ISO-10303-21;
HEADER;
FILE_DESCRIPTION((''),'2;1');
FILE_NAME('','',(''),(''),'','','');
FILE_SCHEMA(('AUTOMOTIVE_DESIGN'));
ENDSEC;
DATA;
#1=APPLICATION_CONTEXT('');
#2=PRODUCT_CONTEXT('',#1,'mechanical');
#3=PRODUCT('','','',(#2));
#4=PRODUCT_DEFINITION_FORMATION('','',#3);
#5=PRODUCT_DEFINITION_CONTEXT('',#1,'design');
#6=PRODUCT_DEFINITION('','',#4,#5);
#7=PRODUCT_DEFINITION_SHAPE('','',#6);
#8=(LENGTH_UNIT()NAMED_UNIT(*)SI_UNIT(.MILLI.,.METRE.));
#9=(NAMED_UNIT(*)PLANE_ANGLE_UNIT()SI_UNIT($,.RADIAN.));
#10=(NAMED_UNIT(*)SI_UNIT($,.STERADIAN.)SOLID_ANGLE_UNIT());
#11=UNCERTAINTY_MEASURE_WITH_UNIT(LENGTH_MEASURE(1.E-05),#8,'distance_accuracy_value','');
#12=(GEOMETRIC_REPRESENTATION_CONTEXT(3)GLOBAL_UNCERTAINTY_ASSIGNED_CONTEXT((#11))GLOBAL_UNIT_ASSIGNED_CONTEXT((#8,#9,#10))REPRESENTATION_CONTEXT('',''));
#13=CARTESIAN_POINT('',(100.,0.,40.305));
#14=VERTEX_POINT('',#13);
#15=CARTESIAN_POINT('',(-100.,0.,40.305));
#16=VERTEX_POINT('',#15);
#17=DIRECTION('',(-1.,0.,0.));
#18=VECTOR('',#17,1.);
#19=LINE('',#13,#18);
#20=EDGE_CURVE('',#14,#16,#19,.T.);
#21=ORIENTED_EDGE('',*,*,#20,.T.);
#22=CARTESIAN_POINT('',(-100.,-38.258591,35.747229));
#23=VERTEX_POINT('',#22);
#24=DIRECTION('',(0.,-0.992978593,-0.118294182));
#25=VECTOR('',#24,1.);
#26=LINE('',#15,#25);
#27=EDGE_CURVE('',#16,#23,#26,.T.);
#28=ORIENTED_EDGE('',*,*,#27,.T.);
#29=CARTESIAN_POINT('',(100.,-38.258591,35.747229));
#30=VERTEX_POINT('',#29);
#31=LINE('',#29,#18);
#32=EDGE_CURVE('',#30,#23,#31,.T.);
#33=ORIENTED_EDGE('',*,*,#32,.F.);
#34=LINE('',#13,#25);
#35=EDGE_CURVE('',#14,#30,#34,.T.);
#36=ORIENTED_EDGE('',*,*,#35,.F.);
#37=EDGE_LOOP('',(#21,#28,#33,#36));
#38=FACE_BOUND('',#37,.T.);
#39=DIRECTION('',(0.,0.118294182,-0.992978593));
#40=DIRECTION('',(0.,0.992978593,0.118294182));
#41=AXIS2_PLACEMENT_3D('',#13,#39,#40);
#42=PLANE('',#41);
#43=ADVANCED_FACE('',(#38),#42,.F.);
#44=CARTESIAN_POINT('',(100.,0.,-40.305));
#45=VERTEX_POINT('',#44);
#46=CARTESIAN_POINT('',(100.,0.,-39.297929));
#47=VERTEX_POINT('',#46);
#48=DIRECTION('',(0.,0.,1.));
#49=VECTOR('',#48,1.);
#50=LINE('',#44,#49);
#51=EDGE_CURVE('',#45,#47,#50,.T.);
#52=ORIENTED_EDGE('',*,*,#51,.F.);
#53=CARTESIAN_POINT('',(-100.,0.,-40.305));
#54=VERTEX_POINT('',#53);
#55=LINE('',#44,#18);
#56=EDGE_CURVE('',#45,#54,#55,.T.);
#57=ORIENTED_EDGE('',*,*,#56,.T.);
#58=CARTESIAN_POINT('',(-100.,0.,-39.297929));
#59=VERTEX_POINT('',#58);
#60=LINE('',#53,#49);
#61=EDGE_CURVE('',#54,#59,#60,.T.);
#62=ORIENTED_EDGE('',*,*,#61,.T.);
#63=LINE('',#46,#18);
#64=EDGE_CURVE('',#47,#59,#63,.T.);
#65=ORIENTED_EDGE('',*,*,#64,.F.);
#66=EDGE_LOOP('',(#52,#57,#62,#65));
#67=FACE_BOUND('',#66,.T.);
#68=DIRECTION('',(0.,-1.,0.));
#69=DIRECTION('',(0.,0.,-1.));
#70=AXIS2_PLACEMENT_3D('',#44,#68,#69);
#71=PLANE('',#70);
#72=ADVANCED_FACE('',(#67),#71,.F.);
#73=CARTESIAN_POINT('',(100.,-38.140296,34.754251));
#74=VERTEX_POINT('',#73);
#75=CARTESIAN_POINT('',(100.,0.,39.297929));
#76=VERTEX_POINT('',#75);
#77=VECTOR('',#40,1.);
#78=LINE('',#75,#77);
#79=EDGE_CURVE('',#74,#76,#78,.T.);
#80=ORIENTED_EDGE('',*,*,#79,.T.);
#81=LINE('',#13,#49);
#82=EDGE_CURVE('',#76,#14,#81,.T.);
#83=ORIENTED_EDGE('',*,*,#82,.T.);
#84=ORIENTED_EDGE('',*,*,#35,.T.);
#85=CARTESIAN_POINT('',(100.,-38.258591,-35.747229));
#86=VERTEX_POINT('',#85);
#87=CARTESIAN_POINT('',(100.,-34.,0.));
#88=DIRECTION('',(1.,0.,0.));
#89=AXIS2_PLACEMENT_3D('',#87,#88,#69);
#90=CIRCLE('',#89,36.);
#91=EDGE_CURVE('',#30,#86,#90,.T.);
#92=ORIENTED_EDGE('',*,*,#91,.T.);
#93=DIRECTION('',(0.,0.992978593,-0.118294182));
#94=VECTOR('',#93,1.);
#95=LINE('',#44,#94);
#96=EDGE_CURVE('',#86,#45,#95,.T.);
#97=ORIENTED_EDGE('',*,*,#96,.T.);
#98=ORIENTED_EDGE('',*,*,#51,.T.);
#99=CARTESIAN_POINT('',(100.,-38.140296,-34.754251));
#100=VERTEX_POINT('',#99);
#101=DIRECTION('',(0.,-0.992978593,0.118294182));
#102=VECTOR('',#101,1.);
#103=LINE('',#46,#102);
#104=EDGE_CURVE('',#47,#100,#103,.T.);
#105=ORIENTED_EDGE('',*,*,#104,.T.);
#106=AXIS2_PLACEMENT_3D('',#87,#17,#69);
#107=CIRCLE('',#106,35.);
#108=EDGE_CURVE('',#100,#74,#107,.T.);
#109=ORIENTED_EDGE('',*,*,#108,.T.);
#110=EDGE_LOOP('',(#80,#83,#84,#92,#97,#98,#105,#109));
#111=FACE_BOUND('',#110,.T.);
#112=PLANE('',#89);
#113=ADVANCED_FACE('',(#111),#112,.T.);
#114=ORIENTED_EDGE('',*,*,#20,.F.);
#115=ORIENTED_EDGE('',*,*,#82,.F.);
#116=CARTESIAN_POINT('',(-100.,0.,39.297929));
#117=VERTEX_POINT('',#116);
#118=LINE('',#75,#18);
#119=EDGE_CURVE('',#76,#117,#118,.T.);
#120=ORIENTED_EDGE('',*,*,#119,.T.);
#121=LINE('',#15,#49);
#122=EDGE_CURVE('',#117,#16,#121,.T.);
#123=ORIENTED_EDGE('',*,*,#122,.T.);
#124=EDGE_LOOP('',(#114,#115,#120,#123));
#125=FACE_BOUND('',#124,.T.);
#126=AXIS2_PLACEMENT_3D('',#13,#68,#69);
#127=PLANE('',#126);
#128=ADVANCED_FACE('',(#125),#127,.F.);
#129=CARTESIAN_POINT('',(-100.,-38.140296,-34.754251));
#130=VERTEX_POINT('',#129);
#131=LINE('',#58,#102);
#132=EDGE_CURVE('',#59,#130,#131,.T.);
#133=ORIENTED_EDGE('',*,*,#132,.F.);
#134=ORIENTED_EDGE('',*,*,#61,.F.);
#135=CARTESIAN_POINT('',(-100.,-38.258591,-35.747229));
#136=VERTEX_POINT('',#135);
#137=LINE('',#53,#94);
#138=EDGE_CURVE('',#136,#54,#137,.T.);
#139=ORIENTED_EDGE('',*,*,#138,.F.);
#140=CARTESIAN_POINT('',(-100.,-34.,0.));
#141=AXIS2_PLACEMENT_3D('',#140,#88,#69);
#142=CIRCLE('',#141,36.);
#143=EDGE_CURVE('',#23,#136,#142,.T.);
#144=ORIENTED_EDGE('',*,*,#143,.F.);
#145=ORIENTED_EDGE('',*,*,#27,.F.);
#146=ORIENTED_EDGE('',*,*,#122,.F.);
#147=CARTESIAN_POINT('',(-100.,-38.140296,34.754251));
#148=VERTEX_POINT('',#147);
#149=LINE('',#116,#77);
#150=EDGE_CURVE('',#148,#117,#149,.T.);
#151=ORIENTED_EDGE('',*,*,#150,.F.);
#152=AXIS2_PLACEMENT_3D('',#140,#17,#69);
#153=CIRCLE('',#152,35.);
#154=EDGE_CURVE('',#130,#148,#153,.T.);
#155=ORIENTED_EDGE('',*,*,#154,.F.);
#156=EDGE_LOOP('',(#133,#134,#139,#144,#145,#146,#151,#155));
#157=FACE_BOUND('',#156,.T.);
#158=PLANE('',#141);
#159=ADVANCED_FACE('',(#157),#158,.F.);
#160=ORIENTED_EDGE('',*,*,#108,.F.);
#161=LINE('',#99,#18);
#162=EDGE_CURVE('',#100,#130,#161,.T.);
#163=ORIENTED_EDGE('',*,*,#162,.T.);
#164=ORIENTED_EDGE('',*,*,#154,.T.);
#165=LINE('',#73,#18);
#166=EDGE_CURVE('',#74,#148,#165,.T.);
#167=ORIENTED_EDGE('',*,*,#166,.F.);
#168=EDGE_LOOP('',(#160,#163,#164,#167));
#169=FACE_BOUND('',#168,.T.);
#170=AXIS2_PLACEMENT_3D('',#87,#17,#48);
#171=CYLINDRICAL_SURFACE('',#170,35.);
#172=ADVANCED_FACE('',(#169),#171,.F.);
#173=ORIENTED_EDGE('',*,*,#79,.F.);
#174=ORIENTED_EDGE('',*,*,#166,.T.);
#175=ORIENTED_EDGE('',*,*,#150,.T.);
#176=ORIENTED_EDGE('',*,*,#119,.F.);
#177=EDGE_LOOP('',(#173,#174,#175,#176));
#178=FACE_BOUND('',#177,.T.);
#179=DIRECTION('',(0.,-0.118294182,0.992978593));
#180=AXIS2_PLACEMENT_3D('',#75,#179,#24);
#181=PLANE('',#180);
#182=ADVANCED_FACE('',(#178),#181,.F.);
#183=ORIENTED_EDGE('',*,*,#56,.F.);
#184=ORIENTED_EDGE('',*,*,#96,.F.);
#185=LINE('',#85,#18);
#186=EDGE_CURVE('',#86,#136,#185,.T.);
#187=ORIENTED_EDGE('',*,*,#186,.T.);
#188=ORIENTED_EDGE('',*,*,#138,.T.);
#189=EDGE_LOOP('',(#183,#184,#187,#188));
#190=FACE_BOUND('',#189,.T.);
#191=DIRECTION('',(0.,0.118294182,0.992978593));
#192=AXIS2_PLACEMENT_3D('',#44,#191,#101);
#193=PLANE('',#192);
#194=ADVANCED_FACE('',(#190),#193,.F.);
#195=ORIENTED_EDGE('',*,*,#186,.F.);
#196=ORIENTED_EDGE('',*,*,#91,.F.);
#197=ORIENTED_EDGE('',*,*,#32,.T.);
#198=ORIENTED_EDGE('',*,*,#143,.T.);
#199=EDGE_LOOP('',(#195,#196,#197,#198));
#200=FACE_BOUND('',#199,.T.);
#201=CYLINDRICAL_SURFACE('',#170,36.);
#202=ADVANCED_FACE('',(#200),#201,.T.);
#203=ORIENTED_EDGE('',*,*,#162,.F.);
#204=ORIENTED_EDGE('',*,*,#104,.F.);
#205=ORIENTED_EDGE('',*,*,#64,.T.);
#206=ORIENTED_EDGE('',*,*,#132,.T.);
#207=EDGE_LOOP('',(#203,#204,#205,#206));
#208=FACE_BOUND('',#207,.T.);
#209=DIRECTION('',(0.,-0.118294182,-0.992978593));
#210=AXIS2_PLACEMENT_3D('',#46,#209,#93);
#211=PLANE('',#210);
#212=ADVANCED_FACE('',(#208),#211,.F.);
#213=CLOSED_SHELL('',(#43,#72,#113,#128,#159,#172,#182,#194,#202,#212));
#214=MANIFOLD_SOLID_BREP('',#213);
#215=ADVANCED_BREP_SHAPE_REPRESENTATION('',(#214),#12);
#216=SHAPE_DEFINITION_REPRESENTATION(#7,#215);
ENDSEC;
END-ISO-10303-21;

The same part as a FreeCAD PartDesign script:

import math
import FreeCAD as App
import Part
import Sketcher
from FreeCAD import Vector

doc = App.newDocument("Part")
body = doc.addObject("PartDesign::Body", "Body")

sketch1 = body.newObject("Sketcher::SketchObject", "Sketch")
sketch1.AttachmentSupport = (doc.getObject("YZ_Plane"), [""])
sketch1.MapMode = "FlatFace"
sketch1.addGeometry(Part.LineSegment(Vector(0, 40.3, 0), Vector(-38.3, 35.7, 0)), False)
sketch1.addGeometry(Part.ArcOfCircle(Part.Circle(Vector(-34, 0, 0), Vector(0, 0, 1), 36), math.radians(97), math.radians(263)), False)
sketch1.addGeometry(Part.LineSegment(Vector(-38.3, -35.7, 0), Vector(0, -40.3, 0)), False)
sketch1.addGeometry(Part.LineSegment(Vector(0, -40.3, 0), Vector(0, -39.3, 0)), False)
sketch1.addGeometry(Part.LineSegment(Vector(0, -39.3, 0), Vector(-38.1, -34.8, 0)), False)
sketch1.addGeometry(Part.ArcOfCircle(Part.Circle(Vector(-34, 0, 0), Vector(0, 0, 1), 35), math.radians(97), math.radians(263)), False)
sketch1.addGeometry(Part.LineSegment(Vector(-38.1, 34.8, 0), Vector(0, 39.3, 0)), False)
sketch1.addGeometry(Part.LineSegment(Vector(0, 39.3, 0), Vector(0, 40.3, 0)), False)
sketch1.addConstraint(Sketcher.Constraint("Tangent", 0, 2, 1, 1))
sketch1.addConstraint(Sketcher.Constraint("Tangent", 1, 2, 2, 1))
sketch1.addConstraint(Sketcher.Constraint("Coincident", 2, 2, 3, 1))
sketch1.addConstraint(Sketcher.Constraint("Coincident", 3, 2, 4, 1))
sketch1.addConstraint(Sketcher.Constraint("Tangent", 4, 2, 5, 2))
sketch1.addConstraint(Sketcher.Constraint("Tangent", 5, 1, 6, 1))
sketch1.addConstraint(Sketcher.Constraint("Coincident", 6, 2, 7, 1))
sketch1.addConstraint(Sketcher.Constraint("Coincident", 7, 2, 0, 1))
sketch1.addConstraint(Sketcher.Constraint("Vertical", 3))
sketch1.addConstraint(Sketcher.Constraint("Vertical", 7))
sketch1.addConstraint(Sketcher.Constraint("Coincident", 5, 3, 1, 3))
sketch1.addConstraint(Sketcher.Constraint("Symmetric", 3, 2, 6, 2, -1, 1))
sketch1.addConstraint(Sketcher.Constraint("Symmetric", 0, 2, 1, 2, -1))
sketch1.addConstraint(Sketcher.Constraint("PointOnObject", 2, 2, -2))
sketch1.addConstraint(Sketcher.Constraint("Parallel", 2, 4))
sketch1.addConstraint(Sketcher.Constraint("Radius", 1, 36.0))
sketch1.addConstraint(Sketcher.Constraint("Radius", 5, 35.0))
sketch1.addConstraint(Sketcher.Constraint("DistanceX", 1, 3, -1, 1, 34.0))
sketch1.addConstraint(Sketcher.Constraint("DistanceY", 2, 2, -1, 1, 40.305))
pad1 = body.newObject("PartDesign::Pad", "Pad")
pad1.Profile = sketch1
pad1.Length = 200
pad1.Midplane = True

doc.recompute()
